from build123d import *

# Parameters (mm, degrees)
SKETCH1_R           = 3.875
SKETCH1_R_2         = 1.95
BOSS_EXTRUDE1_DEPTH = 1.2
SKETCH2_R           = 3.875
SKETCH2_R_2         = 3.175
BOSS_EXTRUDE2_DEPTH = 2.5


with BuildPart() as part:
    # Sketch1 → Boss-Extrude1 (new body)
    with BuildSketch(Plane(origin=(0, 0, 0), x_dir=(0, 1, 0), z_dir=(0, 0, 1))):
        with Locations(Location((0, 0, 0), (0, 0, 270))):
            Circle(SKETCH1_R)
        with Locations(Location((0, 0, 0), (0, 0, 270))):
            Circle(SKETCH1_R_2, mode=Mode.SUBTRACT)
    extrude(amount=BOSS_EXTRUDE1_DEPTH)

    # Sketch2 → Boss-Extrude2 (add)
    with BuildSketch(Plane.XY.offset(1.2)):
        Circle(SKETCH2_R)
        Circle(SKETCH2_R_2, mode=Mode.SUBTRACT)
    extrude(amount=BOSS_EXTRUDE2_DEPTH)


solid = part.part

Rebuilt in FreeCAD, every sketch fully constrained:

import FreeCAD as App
import Part
import Sketcher

doc = App.newDocument("Part")
body = doc.addObject("PartDesign::Body", "Body")

# Sketch on XY plane
sketch1 = doc.addObject("Sketcher::SketchObject", "Sketch")
body.addObject(sketch1)
sketch1.AttachmentSupport = (doc.XY_Plane, [""])
sketch1.MapMode = "FlatFace"
sketch1.addGeometry([
    Part.Circle(App.Vector(0, 0, 0), App.Vector(0, 0, 1), 3.9),
    Part.Circle(App.Vector(0, 0, 0), App.Vector(0, 0, 1), 1.9),
], False)
sketch1.addConstraint([
    Sketcher.Constraint("Coincident", 0, 3, -1, 1),
    Sketcher.Constraint("Coincident", 1, 3, -1, 1),
    Sketcher.Constraint("Diameter", 1, 3.9),
    Sketcher.Constraint("Diameter", 0, 7.75),
])
pad1 = doc.addObject("PartDesign::Pad", "Pad")
body.addObject(pad1)
pad1.Profile = sketch1
pad1.Length = 1.2

# Sketch on XY plane
sketch2 = doc.addObject("Sketcher::SketchObject", "Sketch001")
body.addObject(sketch2)
sketch2.AttachmentSupport = (doc.XY_Plane, [""])
sketch2.MapMode = "FlatFace"
sketch2.AttachmentOffset = App.Placement(App.Vector(0, 0, 1.2), App.Rotation())
sketch2.addGeometry([
    Part.Circle(App.Vector(0, 0, 0), App.Vector(0, 0, 1), 3.9),
    Part.Circle(App.Vector(0, 0, 0), App.Vector(0, 0, 1), 3.2),
], False)
sketch2.addConstraint([
    Sketcher.Constraint("Coincident", 0, 3, -1, 1),
    Sketcher.Constraint("Coincident", 1, 3, -1, 1),
    Sketcher.Constraint("Diameter", 0, 7.75),
    Sketcher.Constraint("Diameter", 1, 6.35),
])
pad2 = doc.addObject("PartDesign::Pad", "Pad001")
body.addObject(pad2)
pad2.Profile = sketch2
pad2.Length = 2.5

doc.recompute()
